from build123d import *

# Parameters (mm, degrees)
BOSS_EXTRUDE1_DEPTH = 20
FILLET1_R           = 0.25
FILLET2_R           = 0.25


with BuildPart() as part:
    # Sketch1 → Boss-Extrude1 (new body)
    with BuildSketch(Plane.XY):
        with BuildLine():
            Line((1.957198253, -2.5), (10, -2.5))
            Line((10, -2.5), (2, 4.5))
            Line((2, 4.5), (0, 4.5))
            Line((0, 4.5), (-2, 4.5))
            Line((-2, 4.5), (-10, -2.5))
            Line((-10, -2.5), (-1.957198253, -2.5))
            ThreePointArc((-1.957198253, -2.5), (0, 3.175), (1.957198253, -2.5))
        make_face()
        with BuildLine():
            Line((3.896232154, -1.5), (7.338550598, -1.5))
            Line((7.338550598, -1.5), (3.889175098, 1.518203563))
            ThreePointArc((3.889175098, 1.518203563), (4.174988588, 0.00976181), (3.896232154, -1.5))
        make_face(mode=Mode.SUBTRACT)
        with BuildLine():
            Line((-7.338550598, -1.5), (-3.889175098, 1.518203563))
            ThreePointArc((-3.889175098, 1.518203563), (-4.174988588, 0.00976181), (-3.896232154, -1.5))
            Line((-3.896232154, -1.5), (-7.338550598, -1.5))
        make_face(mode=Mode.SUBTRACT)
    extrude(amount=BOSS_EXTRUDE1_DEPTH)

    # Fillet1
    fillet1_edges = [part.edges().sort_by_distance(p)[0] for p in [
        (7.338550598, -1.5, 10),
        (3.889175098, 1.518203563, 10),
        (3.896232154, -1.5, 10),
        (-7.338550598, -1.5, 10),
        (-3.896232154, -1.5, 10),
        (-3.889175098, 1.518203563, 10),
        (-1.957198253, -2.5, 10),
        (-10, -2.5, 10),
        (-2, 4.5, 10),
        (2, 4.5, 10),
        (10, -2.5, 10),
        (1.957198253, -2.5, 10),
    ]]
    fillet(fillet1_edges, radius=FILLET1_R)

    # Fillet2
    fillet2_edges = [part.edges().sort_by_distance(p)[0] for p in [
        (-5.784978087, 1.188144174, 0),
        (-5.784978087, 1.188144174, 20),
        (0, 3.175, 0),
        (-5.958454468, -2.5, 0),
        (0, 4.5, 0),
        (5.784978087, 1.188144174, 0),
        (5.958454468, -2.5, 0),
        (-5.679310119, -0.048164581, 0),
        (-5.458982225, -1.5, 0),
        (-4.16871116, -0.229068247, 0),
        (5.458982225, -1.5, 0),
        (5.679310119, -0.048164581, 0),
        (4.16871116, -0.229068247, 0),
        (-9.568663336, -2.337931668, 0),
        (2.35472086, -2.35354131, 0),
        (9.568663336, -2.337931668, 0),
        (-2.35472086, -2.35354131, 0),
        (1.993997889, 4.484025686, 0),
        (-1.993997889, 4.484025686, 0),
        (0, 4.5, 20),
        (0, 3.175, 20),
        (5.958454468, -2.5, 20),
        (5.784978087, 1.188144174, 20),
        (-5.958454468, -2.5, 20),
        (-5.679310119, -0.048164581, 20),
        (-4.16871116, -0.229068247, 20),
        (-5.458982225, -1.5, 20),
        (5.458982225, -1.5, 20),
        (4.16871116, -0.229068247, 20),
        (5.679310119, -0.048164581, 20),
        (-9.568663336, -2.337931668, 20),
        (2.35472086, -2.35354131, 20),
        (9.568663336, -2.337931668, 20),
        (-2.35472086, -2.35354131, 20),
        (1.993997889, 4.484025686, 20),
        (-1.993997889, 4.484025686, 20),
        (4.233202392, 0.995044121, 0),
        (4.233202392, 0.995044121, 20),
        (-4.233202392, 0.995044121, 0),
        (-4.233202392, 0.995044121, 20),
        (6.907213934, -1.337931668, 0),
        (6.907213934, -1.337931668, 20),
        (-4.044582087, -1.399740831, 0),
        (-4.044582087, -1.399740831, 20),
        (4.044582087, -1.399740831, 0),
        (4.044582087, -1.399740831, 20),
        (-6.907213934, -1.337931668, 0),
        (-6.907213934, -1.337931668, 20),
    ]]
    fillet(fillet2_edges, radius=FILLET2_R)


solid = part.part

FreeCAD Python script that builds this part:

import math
import FreeCAD as App
import Part
import Sketcher
from FreeCAD import Vector


def edges_at(feature, points):
    """Names of the edges that pass closest to the given points."""
    edges = feature.Shape.Edges
    near = lambda p: min(range(len(edges)), key=lambda i: edges[i].distToShape(Part.Vertex(*p))[0])
    return sorted({f"Edge{near(p) + 1}" for p in points})

doc = App.newDocument("Part")
params = doc.addObject("Spreadsheet::Sheet", "Params")
for row, (alias, value) in enumerate([
    ("sketch1_width", "4 mm"),
    ("pad1_length", "20 mm"),
    ("fillet_radius", "0.25 mm"),
    ("fillet2_radius", "0.25 mm"),
], start=1):
    params.set(f"A{row}", alias)
    params.set(f"B{row}", "=" + value)
    params.setAlias(f"B{row}", alias)

body = doc.addObject("PartDesign::Body", "Body")

sketch1 = body.newObject("Sketcher::SketchObject", "Sketch")
sketch1.AttachmentSupport = (doc.getObject("XY_Plane"), [""])
sketch1.MapMode = "FlatFace"
sketch1.addGeometry([
    Part.LineSegment(Vector(1.957198, -2.5, 0), Vector(10, -2.5, 0)),
    Part.LineSegment(Vector(10, -2.5, 0), Vector(2, 4.5, 0)),
    Part.LineSegment(Vector(2, 4.5, 0), Vector(-2, 4.5, 0)),
    Part.LineSegment(Vector(-2, 4.5, 0), Vector(-10, -2.5, 0)),
    Part.LineSegment(Vector(-10, -2.5, 0), Vector(-1.957198, -2.5, 0)),
    Part.ArcOfCircle(Part.Circle(Vector(0, 0, 0), Vector(0, 0, 1), 3.175), math.radians(-51.943343), math.radians(231.943343)),
    Part.LineSegment(Vector(-3.896232, -1.5, 0), Vector(-7.338551, -1.5, 0)),
    Part.LineSegment(Vector(-7.338551, -1.5, 0), Vector(-3.889175, 1.518204, 0)),
    Part.ArcOfCircle(Part.Circle(Vector(0, 0, 0), Vector(0, 0, 1), 4.175), math.radians(158.675993), math.radians(201.056073)),
    Part.LineSegment(Vector(7.338551, -1.5, 0), Vector(3.896232, -1.5, 0)),
    Part.ArcOfCircle(Part.Circle(Vector(0, 0, 0), Vector(0, 0, 1), 4.175), math.radians(-21.056073), math.radians(21.324007)),
    Part.LineSegment(Vector(3.889175, 1.518204, 0), Vector(7.338551, -1.5, 0)),
], False)
sketch1.addConstraint([
    Sketcher.Constraint("Coincident", 0, 2, 1, 1),
    Sketcher.Constraint("Coincident", 1, 2, 2, 1),
    Sketcher.Constraint("Coincident", 2, 2, 3, 1),
    Sketcher.Constraint("Coincident", 3, 2, 4, 1),
    Sketcher.Constraint("Coincident", 4, 2, 5, 2),
    Sketcher.Constraint("Coincident", 5, 1, 0, 1),
    Sketcher.Constraint("Coincident", 6, 2, 7, 1),
    Sketcher.Constraint("Coincident", 7, 2, 8, 1),
    Sketcher.Constraint("Coincident", 8, 2, 6, 1),
    Sketcher.Constraint("Coincident", 9, 2, 10, 1),
    Sketcher.Constraint("Coincident", 10, 2, 11, 1),
    Sketcher.Constraint("Coincident", 11, 2, 9, 1),
    Sketcher.Constraint("Horizontal", 0),
    Sketcher.Constraint("Horizontal", 2),
    Sketcher.Constraint("Horizontal", 4),
    Sketcher.Constraint("Horizontal", 6),
    Sketcher.Constraint("Horizontal", 9),
    Sketcher.Constraint("Coincident", 5, 3, -1, 1),
    Sketcher.Constraint("Coincident", 8, 3, -1, 1),
    Sketcher.Constraint("Coincident", 10, 3, -1, 1),
    Sketcher.Constraint("Equal", 8, 10),
    Sketcher.Constraint("Symmetric", 0, 2, 3, 2, -2),
    Sketcher.Constraint("Symmetric", 6, 2, 11, 2, -2),
    Sketcher.Constraint("Parallel", 3, 7),
    Sketcher.Constraint("Parallel", 1, 11),
    Sketcher.Constraint("Horizontal", 7, 2, 10, 2),
    Sketcher.Constraint("DistanceX", 2, 2, 2, 1, 4.0),
    Sketcher.Constraint("DistanceX", -1, 1, 0, 2, 10.0),
    Sketcher.Constraint("Radius", 5, 3.175),
    Sketcher.Constraint("Radius", 8, 4.175),
    Sketcher.Constraint("DistanceY", 0, 2, 1, 2, 7.0),
    Sketcher.Constraint("DistanceY", 3, 2, 6, 2, 1.0),
    Sketcher.Constraint("DistanceY", 0, 2, -1, 1, 2.5),
    Sketcher.Constraint("DistanceX", 6, 2, 6, 1, 3.442318),
])
sketch1.setExpression("Constraints[26]", "Params.sketch1_width")
pad1 = body.newObject("PartDesign::Pad", "Pad")
pad1.Profile = sketch1
pad1.setExpression("Length", "Params.pad1_length")
doc.recompute()

fillet = body.newObject("PartDesign::Fillet", "Fillet")
fillet.Base = (pad1, edges_at(pad1, [
    (7.339, -1.5, 10),
    (3.889, 1.518, 10),
    (3.896, -1.5, 10),
    (-7.339, -1.5, 10),
    (-3.896, -1.5, 10),
    (-3.889, 1.518, 10),
    (-1.957, -2.5, 10),
    (-10, -2.5, 10),
    (-2, 4.5, 10),
    (2, 4.5, 10),
    (10, -2.5, 10),
    (1.957, -2.5, 10),
]))
fillet.setExpression("Radius", "Params.fillet_radius")
doc.recompute()

fillet2 = body.newObject("PartDesign::Fillet", "Fillet001")
fillet2.Base = (fillet, edges_at(fillet, [
    (-5.785, 1.188, 0),
    (-5.785, 1.188, 20),
    (0, 3.175, 0),
    (-5.958, -2.5, 0),
    (0, 4.5, 0),
    (5.785, 1.188, 0),
    (5.958, -2.5, 0),
    (-5.679, -0.048, 0),
    (-5.459, -1.5, 0),
    (-4.169, -0.229, 0),
    (5.459, -1.5, 0),
    (5.679, -0.048, 0),
    (4.169, -0.229, 0),
    (-9.569, -2.338, 0),
    (2.355, -2.354, 0),
    (9.569, -2.338, 0),
    (-2.355, -2.354, 0),
    (1.994, 4.484, 0),
    (-1.994, 4.484, 0),
    (0, 4.5, 20),
    (0, 3.175, 20),
    (5.958, -2.5, 20),
    (5.785, 1.188, 20),
    (-5.958, -2.5, 20),
    (-5.679, -0.048, 20),
    (-4.169, -0.229, 20),
    (-5.459, -1.5, 20),
    (5.459, -1.5, 20),
    (4.169, -0.229, 20),
    (5.679, -0.048, 20),
    (-9.569, -2.338, 20),
    (2.355, -2.354, 20),
    (9.569, -2.338, 20),
    (-2.355, -2.354, 20),
    (1.994, 4.484, 20),
    (-1.994, 4.484, 20),
    (4.233, 0.995, 0),
    (4.233, 0.995, 20),
    (-4.233, 0.995, 0),
    (-4.233, 0.995, 20),
    (6.907, -1.338, 0),
    (6.907, -1.338, 20),
    (-4.045, -1.4, 0),
    (-4.045, -1.4, 20),
    (4.045, -1.4, 0),
    (4.045, -1.4, 20),
    (-6.907, -1.338, 0),
    (-6.907, -1.338, 20),
]))
fillet2.setExpression("Radius", "Params.fillet2_radius")

doc.recompute()
